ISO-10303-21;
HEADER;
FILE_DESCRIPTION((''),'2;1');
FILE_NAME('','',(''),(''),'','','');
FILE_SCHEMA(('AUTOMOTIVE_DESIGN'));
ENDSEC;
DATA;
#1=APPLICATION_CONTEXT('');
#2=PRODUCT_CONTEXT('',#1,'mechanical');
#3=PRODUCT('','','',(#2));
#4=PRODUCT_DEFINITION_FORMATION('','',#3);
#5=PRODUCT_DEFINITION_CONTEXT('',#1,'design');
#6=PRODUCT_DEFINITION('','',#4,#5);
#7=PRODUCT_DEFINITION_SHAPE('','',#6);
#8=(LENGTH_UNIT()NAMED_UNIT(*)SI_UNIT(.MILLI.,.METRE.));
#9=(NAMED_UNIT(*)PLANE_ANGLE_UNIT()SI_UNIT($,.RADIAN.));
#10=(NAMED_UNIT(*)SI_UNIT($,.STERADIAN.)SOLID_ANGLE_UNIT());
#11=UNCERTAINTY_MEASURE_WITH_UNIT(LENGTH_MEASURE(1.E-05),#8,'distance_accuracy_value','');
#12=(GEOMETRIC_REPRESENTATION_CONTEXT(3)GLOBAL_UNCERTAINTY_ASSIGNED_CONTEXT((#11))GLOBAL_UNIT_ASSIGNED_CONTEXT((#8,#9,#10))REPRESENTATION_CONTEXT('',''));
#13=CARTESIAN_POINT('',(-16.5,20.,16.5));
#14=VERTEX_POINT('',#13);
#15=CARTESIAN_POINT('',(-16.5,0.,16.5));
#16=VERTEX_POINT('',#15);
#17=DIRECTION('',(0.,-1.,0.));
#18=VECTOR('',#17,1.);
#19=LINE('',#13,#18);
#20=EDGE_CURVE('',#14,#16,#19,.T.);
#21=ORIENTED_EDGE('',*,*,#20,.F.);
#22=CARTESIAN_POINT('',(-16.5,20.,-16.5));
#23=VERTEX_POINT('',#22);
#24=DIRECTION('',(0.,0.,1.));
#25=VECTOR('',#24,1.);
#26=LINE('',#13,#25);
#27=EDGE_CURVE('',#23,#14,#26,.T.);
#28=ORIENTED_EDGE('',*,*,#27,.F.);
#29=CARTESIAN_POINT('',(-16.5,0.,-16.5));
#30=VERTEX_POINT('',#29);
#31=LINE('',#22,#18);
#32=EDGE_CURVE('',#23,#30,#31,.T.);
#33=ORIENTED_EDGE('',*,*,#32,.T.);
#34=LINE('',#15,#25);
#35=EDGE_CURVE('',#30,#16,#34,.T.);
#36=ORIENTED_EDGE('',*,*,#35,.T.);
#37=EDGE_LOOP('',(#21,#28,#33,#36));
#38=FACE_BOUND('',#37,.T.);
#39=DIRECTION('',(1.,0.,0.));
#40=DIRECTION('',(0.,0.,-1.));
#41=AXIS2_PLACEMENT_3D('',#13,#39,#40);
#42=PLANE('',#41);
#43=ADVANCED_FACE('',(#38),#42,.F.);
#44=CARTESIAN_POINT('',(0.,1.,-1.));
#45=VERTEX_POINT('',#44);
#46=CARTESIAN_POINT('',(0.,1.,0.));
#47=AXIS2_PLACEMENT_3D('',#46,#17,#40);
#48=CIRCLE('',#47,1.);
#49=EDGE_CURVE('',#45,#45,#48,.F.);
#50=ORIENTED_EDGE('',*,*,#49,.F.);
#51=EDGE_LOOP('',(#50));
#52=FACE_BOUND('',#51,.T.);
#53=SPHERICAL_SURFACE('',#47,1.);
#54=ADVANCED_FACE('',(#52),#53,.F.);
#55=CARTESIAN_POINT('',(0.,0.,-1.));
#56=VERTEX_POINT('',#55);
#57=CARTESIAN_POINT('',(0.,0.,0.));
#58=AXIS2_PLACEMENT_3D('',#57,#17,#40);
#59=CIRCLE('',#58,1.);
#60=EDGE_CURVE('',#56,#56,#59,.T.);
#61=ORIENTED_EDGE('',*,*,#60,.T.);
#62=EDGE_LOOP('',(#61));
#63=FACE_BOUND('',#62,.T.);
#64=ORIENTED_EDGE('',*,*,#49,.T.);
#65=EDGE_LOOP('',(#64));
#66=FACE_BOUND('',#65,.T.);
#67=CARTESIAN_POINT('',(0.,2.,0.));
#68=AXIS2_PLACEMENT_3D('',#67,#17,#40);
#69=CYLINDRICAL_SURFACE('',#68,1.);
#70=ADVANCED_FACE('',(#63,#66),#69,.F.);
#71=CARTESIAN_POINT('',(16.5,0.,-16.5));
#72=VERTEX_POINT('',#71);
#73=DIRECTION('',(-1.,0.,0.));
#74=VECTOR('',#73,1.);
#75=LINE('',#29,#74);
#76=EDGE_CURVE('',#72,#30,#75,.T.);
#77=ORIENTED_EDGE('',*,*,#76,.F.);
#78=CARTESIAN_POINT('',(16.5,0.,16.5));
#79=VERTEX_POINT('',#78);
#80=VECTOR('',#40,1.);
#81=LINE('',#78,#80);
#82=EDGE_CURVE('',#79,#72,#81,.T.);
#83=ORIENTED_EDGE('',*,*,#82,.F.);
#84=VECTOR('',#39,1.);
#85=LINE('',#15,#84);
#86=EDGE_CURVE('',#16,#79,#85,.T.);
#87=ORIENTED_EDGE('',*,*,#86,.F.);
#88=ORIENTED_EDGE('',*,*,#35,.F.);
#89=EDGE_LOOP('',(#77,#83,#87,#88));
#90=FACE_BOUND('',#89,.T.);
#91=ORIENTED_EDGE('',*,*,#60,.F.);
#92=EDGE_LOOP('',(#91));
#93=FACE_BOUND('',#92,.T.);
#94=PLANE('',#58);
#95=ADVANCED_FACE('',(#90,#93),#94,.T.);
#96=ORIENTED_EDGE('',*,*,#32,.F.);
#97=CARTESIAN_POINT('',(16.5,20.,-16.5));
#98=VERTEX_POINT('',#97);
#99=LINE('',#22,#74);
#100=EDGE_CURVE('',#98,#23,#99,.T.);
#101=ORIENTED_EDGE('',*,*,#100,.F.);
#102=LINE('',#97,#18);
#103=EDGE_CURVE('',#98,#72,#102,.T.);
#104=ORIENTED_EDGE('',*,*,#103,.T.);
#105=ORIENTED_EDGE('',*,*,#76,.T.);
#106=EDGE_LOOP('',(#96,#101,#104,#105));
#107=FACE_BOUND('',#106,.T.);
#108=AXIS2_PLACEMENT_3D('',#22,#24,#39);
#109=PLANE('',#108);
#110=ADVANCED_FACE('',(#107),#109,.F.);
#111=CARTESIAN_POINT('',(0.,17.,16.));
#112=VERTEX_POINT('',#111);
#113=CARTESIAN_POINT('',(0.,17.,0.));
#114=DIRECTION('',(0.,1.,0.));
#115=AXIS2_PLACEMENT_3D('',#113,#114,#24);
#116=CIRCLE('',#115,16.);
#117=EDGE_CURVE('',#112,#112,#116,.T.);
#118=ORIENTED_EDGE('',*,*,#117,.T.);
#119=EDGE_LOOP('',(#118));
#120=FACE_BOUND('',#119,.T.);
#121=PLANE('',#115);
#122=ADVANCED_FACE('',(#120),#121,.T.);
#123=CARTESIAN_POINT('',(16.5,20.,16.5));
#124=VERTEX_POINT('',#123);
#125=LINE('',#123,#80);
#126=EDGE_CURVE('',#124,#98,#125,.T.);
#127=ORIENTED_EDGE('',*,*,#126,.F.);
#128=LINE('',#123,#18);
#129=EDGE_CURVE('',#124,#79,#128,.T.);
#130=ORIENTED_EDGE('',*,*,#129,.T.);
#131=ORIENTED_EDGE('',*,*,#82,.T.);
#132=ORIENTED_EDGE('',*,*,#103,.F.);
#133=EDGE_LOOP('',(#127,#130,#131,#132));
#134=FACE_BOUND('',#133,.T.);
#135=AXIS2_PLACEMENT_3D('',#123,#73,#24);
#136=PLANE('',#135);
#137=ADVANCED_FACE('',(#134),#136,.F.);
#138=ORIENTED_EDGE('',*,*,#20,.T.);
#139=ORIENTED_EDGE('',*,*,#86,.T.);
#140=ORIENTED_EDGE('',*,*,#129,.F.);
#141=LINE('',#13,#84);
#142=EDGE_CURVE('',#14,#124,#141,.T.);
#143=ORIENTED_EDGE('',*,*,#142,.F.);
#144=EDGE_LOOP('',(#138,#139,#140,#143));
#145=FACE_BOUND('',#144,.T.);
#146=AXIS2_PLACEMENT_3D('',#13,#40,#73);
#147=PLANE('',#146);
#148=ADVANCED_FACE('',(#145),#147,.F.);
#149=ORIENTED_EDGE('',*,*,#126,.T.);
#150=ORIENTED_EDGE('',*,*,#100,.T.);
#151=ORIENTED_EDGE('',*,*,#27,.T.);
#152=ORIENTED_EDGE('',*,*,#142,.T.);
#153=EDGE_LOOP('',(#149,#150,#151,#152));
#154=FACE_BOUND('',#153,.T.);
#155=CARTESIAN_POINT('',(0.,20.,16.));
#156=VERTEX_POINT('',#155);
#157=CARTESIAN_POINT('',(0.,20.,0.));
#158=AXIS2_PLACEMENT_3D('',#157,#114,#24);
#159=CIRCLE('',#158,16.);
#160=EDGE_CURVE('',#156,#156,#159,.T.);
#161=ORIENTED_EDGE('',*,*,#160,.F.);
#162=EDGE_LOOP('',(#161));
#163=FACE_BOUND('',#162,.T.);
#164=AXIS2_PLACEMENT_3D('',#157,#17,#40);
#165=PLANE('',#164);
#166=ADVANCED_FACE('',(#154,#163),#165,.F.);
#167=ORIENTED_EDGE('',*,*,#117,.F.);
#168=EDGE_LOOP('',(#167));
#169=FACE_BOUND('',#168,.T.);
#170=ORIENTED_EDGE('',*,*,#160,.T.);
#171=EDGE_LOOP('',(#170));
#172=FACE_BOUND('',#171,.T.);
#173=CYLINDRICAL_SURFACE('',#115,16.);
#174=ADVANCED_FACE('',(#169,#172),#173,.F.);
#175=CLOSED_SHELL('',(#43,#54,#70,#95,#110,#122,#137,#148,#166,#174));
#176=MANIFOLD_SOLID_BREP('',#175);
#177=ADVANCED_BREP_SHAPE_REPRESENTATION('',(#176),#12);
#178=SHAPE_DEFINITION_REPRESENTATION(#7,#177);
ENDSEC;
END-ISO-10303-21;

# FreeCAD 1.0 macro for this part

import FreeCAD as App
import Part
import Sketcher
Q = App.Units.Quantity


def edges_at(feature, points):
    """Names of the edges that pass closest to the given points."""
    edges = feature.Shape.Edges
    near = lambda p: min(range(len(edges)), key=lambda i: edges[i].distToShape(Part.Vertex(*p))[0])
    return sorted({f"Edge{near(p) + 1}" for p in points})

doc = App.newDocument("Part")
body = doc.addObject("PartDesign::Body", "Body")

# Sketch on XZ plane
sketch1 = body.newObject("Sketcher::SketchObject", "Sketch")
sketch1.AttachmentSupport = (doc.getObject("XZ_Plane"), [""])
sketch1.MapMode = "FlatFace"
sketch1.addGeometry(Part.LineSegment(App.Vector(-16, -16, 0), App.Vector(-16, 16, 0)), False)
sketch1.addGeometry(Part.LineSegment(App.Vector(-16, 16, 0), App.Vector(16, 16, 0)), False)
sketch1.addGeometry(Part.LineSegment(App.Vector(16, 16, 0), App.Vector(16, -16, 0)), False)
sketch1.addGeometry(Part.LineSegment(App.Vector(16, -16, 0), App.Vector(-16, -16, 0)), False)
sketch1.addConstraint(Sketcher.Constraint("Coincident", 0, 2, 1, 1))
sketch1.addConstraint(Sketcher.Constraint("Coincident", 1, 2, 2, 1))
sketch1.addConstraint(Sketcher.Constraint("Coincident", 2, 2, 3, 1))
sketch1.addConstraint(Sketcher.Constraint("Coincident", 3, 2, 0, 1))
sketch1.addConstraint(Sketcher.Constraint("Vertical", 0))
sketch1.addConstraint(Sketcher.Constraint("Horizontal", 1))
sketch1.addConstraint(Sketcher.Constraint("Vertical", 2))
sketch1.addConstraint(Sketcher.Constraint("Horizontal", 3))
sketch1.addConstraint(Sketcher.Constraint("Symmetric", 0, 2, 2, 2, -1, 1))
sketch1.addConstraint(Sketcher.Constraint("Equal", 3, 0))
sketch1.addConstraint(Sketcher.Constraint("DistanceX", 1, 1, 1, 2, Q("33 mm")))
pad1 = body.newObject("PartDesign::Pad", "Pad")
pad1.Profile = sketch1
pad1.Length = 20
pad1.Reversed = True

# Sketch on XZ plane
sketch2 = body.newObject("Sketcher::SketchObject", "Sketch001")
sketch2.AttachmentSupport = (doc.getObject("XZ_Plane"), [""])
sketch2.MapMode = "FlatFace"
sketch2.AttachmentOffset = App.Placement(App.Vector(0, 0, -20), App.Rotation())
sketch2.addGeometry(Part.Circle(App.Vector(0, 0, 0), App.Vector(0, 0, 1), 16), False)
sketch2.addConstraint(Sketcher.Constraint("Coincident", 0, 3, -1, 1))
sketch2.addConstraint(Sketcher.Constraint("Diameter", 0, Q("32 mm")))
pocket1 = body.newObject("PartDesign::Pocket", "Pocket")
pocket1.Profile = sketch2
pocket1.Length = 3
pocket1.Reversed = True

# Sketch on XZ plane
sketch3 = body.newObject("Sketcher::SketchObject", "Sketch002")
sketch3.AttachmentSupport = (doc.getObject("XZ_Plane"), [""])
sketch3.MapMode = "FlatFace"
sketch3.addGeometry(Part.Circle(App.Vector(0, 0, 0), App.Vector(0, 0, 1), 1), False)
sketch3.addConstraint(Sketcher.Constraint("Coincident", 0, 3, -1, 1))
sketch3.addConstraint(Sketcher.Constraint("Diameter", 0, Q("2 mm")))
pocket2 = body.newObject("PartDesign::Pocket", "Pocket001")
pocket2.Profile = sketch3
pocket2.Length = 2
doc.recompute()

fillet = body.newObject("PartDesign::Fillet", "Fillet")
fillet.Base = (pocket2, edges_at(pocket2, [(-1, 2, 0)]))
fillet.Radius = 1

doc.recompute()
